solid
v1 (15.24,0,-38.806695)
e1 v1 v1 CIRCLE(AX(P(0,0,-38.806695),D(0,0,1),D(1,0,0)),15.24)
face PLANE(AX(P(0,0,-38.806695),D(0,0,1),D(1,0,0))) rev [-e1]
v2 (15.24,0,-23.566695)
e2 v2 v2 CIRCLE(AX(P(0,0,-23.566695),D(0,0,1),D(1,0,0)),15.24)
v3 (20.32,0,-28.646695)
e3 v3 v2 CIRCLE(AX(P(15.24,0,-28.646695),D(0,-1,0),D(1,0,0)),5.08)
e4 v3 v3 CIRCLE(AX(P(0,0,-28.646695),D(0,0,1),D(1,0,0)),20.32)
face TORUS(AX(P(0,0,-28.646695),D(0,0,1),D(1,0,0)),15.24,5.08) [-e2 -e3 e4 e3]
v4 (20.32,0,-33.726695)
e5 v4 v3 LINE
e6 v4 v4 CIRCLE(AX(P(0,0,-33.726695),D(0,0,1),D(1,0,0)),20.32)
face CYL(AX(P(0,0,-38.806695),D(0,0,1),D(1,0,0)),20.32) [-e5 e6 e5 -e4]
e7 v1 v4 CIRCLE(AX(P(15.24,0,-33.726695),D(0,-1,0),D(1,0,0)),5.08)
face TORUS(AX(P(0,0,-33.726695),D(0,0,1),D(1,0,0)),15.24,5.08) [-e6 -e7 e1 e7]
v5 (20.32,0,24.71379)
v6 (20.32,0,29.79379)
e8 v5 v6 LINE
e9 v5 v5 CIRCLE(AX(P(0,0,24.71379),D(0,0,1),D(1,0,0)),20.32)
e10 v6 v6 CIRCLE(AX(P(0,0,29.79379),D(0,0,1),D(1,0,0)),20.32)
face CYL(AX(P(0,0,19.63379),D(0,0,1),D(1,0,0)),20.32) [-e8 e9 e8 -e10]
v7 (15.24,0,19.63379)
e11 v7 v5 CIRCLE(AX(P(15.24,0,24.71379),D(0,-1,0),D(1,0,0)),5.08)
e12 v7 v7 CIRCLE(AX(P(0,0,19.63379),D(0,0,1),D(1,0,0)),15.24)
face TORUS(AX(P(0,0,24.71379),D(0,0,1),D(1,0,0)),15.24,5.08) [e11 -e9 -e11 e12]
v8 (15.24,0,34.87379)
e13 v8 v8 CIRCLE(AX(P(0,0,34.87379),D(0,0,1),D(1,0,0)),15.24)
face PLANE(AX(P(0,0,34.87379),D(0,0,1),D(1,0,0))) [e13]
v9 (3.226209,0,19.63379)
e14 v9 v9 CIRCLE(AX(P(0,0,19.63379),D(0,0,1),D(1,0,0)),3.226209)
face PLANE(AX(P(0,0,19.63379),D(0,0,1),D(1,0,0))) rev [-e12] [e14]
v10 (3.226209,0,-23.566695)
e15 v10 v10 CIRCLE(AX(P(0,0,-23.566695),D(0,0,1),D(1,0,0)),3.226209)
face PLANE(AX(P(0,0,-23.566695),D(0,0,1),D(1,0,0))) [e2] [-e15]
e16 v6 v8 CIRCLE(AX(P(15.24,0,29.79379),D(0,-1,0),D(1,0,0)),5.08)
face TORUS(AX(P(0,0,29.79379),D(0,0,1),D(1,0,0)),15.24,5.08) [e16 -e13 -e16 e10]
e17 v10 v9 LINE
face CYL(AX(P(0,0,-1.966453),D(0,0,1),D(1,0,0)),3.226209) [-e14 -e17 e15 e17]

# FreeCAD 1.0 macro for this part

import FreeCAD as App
import Part
import Sketcher
from FreeCAD import Vector
Q = App.Units.Quantity


def edges_at(feature, points):
    """Names of the edges that pass closest to the given points."""
    edges = feature.Shape.Edges
    near = lambda p: min(range(len(edges)), key=lambda i: edges[i].distToShape(Part.Vertex(*p))[0])
    return sorted({f"Edge{near(p) + 1}" for p in points})

doc = App.newDocument("Part")
body = doc.addObject("PartDesign::Body", "Body")

# Sketch on XZ plane
sketch1 = body.newObject("Sketcher::SketchObject", "Sketch")
sketch1.AttachmentSupport = (doc.getObject("XZ_Plane"), [""])
sketch1.MapMode = "FlatFace"
sketch1.addGeometry([
    Part.LineSegment(Vector(0, -38.806695, 0), Vector(20.32, -38.806695, 0)),  # 0
    Part.LineSegment(Vector(20.32, -38.806695, 0), Vector(20.32, -23.566695, 0)),  # 1
    Part.LineSegment(Vector(20.32, -23.566695, 0), Vector(3.226209, -23.566695, 0)),  # 2
    Part.LineSegment(Vector(3.226209, -23.566695, 0), Vector(3.226209, 19.63379, 0)),  # 3
    Part.LineSegment(Vector(3.226209, 19.63379, 0), Vector(20.32, 19.63379, 0)),  # 4
    Part.LineSegment(Vector(20.32, 19.63379, 0), Vector(20.32, 34.87379, 0)),  # 5
    Part.LineSegment(Vector(20.32, 34.87379, 0), Vector(0, 34.87379, 0)),  # 6
    Part.LineSegment(Vector(0, 34.87379, 0), Vector(0, -38.806695, 0)),  # 7
], False)
sketch1.addConstraint([
    Sketcher.Constraint("Coincident", 0, 2, 1, 1),
    Sketcher.Constraint("Coincident", 1, 2, 2, 1),
    Sketcher.Constraint("Coincident", 2, 2, 3, 1),
    Sketcher.Constraint("Coincident", 3, 2, 4, 1),
    Sketcher.Constraint("Coincident", 4, 2, 5, 1),
    Sketcher.Constraint("Coincident", 5, 2, 6, 1),
    Sketcher.Constraint("Coincident", 6, 2, 7, 1),
    Sketcher.Constraint("Coincident", 7, 2, 0, 1),
    Sketcher.Constraint("Horizontal", 0),
    Sketcher.Constraint("Vertical", 1),
    Sketcher.Constraint("Horizontal", 2),
    Sketcher.Constraint("Vertical", 3),
    Sketcher.Constraint("Horizontal", 4),
    Sketcher.Constraint("Vertical", 5),
    Sketcher.Constraint("Horizontal", 6),
    Sketcher.Constraint("Vertical", 7),
    Sketcher.Constraint("PointOnObject", 6, 2, -2),
    Sketcher.Constraint("Vertical", 1, 2, 4, 2),
    Sketcher.Constraint("Equal", 1, 5),
    Sketcher.Constraint("DistanceX", 0, 1, 0, 2, Q("0.8 in")),
    Sketcher.Constraint("DistanceY", 1, 1, 1, 2, Q("0.6 in")),
    Sketcher.Constraint("DistanceX", 2, 2, 2, 1, Q("17.093791 mm")),
    Sketcher.Constraint("DistanceY", 3, 1, 3, 2, Q("43.200486 mm")),
    Sketcher.Constraint("DistanceY", -1, 1, 3, 2, Q("19.63379 mm")),
])
revolution = body.newObject("PartDesign::Revolution", "Revolution")
revolution.Profile = sketch1
revolution.ReferenceAxis = (sketch1, ["V_Axis"])
revolution.Angle = 360
doc.recompute()

fillet = body.newObject("PartDesign::Fillet", "Fillet")
fillet.Base = (revolution, edges_at(revolution, [
    (-20.32, 0, 34.874),
    (-20.32, 0, 19.634),
    (-20.32, 0, -23.567),
    (-20.32, 0, -38.807),
]))
fillet.Radius = Q("0.2 in")

doc.recompute()
